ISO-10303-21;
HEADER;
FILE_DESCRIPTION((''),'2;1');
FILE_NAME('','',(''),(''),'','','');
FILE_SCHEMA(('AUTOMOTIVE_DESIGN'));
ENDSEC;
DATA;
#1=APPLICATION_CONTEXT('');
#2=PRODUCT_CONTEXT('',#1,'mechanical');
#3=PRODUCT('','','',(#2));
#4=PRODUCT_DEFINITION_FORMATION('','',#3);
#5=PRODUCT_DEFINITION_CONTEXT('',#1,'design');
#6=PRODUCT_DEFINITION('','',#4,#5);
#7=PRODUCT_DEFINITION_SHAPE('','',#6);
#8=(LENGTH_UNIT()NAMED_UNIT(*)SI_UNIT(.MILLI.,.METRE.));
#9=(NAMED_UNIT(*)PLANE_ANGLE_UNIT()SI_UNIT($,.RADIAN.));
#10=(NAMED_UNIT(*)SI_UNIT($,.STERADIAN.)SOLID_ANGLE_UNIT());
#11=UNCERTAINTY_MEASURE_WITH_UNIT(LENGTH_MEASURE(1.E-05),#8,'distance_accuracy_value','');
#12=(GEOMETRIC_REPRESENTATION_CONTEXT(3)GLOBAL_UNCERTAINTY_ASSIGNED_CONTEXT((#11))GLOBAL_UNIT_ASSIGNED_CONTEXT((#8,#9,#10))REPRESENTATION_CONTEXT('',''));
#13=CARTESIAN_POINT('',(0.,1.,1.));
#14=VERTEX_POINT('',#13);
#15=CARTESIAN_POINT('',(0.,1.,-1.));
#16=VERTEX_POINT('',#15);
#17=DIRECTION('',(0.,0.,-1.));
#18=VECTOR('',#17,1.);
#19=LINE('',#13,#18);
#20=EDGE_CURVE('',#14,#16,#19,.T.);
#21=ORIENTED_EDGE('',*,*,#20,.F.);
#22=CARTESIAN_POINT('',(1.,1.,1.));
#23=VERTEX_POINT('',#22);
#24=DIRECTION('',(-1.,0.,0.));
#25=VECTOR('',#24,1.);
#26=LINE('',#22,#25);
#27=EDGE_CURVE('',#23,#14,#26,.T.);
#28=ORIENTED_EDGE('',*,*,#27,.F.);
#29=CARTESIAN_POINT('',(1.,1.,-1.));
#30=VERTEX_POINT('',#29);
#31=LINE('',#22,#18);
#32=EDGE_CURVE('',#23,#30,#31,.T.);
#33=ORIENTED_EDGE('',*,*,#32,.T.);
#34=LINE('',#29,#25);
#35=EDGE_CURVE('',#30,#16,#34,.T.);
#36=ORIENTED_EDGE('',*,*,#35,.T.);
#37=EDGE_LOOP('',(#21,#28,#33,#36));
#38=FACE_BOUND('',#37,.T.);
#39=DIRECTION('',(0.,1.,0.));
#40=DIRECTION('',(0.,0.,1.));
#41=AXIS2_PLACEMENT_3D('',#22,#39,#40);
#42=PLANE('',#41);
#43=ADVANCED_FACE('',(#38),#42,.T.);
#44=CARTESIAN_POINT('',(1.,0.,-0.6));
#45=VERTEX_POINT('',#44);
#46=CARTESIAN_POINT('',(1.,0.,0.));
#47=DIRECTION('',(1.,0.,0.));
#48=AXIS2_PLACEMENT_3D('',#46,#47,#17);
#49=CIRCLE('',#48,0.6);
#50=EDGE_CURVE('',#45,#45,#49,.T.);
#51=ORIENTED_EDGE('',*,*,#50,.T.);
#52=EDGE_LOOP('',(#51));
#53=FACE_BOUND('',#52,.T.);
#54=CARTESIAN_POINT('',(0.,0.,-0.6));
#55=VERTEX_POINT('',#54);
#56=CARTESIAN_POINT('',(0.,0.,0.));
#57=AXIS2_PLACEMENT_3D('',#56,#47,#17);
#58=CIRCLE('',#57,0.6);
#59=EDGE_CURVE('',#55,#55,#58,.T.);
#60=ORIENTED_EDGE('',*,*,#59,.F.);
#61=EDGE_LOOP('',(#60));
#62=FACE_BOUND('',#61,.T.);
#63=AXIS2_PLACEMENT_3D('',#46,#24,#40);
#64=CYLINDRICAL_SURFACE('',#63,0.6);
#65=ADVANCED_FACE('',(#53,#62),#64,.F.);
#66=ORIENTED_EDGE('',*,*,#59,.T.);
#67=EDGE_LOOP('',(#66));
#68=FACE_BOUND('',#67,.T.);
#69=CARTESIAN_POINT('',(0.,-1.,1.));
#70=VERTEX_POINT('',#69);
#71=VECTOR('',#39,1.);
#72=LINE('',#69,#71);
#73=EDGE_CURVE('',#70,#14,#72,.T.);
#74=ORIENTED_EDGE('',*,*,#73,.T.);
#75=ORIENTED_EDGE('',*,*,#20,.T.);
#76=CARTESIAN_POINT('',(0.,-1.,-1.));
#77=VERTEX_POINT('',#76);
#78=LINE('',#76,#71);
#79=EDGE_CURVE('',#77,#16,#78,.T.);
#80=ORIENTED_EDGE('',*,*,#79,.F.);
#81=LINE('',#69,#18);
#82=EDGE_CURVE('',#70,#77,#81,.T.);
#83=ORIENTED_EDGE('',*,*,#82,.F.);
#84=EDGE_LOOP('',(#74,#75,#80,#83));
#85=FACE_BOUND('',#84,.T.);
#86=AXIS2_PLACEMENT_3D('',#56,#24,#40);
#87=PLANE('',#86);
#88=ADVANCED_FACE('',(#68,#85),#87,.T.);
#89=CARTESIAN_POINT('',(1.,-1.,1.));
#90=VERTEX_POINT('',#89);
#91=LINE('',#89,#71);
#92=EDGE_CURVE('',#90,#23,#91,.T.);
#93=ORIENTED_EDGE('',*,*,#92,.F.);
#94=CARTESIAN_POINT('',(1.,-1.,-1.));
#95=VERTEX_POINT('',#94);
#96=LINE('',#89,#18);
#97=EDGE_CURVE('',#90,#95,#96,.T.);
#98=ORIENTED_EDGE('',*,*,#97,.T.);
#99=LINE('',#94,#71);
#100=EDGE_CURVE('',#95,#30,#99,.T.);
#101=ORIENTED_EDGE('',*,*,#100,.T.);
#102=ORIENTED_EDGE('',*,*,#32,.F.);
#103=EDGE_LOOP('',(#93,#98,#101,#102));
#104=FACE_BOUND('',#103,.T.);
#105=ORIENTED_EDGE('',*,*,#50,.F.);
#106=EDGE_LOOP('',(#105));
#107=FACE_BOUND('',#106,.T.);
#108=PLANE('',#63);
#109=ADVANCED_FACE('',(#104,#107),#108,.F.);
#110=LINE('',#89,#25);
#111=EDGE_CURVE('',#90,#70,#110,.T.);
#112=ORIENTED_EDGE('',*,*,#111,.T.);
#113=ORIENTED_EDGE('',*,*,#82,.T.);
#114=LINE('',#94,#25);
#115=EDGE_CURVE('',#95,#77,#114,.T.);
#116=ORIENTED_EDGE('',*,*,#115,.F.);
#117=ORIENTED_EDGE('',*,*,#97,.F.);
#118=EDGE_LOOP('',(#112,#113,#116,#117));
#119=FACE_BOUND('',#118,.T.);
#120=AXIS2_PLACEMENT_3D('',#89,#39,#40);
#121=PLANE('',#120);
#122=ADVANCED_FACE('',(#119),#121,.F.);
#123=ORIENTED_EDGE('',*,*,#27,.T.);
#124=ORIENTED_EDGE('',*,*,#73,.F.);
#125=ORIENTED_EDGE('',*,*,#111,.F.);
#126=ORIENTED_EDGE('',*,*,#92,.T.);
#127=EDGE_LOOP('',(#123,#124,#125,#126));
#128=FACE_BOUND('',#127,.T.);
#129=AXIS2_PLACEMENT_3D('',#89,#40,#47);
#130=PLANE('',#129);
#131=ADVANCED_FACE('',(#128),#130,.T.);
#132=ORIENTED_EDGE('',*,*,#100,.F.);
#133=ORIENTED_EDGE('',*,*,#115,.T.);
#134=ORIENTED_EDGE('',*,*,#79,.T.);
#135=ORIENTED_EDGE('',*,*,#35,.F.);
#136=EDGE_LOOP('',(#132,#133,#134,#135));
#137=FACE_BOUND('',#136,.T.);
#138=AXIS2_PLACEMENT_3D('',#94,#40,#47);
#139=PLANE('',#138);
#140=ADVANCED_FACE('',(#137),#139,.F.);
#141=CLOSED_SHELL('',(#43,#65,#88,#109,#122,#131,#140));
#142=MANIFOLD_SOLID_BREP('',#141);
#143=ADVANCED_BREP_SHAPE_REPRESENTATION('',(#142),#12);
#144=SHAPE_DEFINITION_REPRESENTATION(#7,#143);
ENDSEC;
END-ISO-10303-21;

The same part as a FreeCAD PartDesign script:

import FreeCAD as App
import Part
import Sketcher
Q = App.Units.Quantity


def add_polygon(sketch, points):
    """Adds a closed chain of lines whose ends are joined by coincident constraints."""
    first, n = sketch.GeometryCount, len(points)
    for a, b in zip(points, points[1:] + points[:1]):
        sketch.addGeometry(Part.LineSegment(App.Vector(*a, 0), App.Vector(*b, 0)), False)
    for i in range(n):
        sketch.addConstraint(Sketcher.Constraint("Coincident", first + i, 2, first + (i + 1) % n, 1))

doc = App.newDocument("Part")
body = doc.addObject("PartDesign::Body", "Body")

# Sketch on YZ plane
sketch1 = body.newObject("Sketcher::SketchObject", "Sketch")
sketch1.AttachmentSupport = (doc.getObject("YZ_Plane"), [""])
sketch1.MapMode = "FlatFace"
add_polygon(sketch1, [(1, 1), (-1, 1), (-1, -1), (1, -1)])  # lines 0-3
sketch1.addGeometry(Part.Circle(App.Vector(0, 0, 0), App.Vector(0, 0, 1), 0.6), False)  # 4
sketch1.addConstraint([
    Sketcher.Constraint("Horizontal", 0),
    Sketcher.Constraint("Vertical", 1),
    Sketcher.Constraint("Horizontal", 2),
    Sketcher.Constraint("Vertical", 3),
    Sketcher.Constraint("Coincident", 4, 3, -1, 1),
    Sketcher.Constraint("Symmetric", 0, 2, 2, 2, -1, 1),
    Sketcher.Constraint("Equal", 2, 1),
    Sketcher.Constraint("Diameter", 4, Q("1.2 mm")),
    Sketcher.Constraint("DistanceX", 0, 2, 0, 1, Q("2 mm")),
])
pad1 = body.newObject("PartDesign::Pad", "Pad")
pad1.Profile = sketch1
pad1.Length = 1

doc.recompute()
